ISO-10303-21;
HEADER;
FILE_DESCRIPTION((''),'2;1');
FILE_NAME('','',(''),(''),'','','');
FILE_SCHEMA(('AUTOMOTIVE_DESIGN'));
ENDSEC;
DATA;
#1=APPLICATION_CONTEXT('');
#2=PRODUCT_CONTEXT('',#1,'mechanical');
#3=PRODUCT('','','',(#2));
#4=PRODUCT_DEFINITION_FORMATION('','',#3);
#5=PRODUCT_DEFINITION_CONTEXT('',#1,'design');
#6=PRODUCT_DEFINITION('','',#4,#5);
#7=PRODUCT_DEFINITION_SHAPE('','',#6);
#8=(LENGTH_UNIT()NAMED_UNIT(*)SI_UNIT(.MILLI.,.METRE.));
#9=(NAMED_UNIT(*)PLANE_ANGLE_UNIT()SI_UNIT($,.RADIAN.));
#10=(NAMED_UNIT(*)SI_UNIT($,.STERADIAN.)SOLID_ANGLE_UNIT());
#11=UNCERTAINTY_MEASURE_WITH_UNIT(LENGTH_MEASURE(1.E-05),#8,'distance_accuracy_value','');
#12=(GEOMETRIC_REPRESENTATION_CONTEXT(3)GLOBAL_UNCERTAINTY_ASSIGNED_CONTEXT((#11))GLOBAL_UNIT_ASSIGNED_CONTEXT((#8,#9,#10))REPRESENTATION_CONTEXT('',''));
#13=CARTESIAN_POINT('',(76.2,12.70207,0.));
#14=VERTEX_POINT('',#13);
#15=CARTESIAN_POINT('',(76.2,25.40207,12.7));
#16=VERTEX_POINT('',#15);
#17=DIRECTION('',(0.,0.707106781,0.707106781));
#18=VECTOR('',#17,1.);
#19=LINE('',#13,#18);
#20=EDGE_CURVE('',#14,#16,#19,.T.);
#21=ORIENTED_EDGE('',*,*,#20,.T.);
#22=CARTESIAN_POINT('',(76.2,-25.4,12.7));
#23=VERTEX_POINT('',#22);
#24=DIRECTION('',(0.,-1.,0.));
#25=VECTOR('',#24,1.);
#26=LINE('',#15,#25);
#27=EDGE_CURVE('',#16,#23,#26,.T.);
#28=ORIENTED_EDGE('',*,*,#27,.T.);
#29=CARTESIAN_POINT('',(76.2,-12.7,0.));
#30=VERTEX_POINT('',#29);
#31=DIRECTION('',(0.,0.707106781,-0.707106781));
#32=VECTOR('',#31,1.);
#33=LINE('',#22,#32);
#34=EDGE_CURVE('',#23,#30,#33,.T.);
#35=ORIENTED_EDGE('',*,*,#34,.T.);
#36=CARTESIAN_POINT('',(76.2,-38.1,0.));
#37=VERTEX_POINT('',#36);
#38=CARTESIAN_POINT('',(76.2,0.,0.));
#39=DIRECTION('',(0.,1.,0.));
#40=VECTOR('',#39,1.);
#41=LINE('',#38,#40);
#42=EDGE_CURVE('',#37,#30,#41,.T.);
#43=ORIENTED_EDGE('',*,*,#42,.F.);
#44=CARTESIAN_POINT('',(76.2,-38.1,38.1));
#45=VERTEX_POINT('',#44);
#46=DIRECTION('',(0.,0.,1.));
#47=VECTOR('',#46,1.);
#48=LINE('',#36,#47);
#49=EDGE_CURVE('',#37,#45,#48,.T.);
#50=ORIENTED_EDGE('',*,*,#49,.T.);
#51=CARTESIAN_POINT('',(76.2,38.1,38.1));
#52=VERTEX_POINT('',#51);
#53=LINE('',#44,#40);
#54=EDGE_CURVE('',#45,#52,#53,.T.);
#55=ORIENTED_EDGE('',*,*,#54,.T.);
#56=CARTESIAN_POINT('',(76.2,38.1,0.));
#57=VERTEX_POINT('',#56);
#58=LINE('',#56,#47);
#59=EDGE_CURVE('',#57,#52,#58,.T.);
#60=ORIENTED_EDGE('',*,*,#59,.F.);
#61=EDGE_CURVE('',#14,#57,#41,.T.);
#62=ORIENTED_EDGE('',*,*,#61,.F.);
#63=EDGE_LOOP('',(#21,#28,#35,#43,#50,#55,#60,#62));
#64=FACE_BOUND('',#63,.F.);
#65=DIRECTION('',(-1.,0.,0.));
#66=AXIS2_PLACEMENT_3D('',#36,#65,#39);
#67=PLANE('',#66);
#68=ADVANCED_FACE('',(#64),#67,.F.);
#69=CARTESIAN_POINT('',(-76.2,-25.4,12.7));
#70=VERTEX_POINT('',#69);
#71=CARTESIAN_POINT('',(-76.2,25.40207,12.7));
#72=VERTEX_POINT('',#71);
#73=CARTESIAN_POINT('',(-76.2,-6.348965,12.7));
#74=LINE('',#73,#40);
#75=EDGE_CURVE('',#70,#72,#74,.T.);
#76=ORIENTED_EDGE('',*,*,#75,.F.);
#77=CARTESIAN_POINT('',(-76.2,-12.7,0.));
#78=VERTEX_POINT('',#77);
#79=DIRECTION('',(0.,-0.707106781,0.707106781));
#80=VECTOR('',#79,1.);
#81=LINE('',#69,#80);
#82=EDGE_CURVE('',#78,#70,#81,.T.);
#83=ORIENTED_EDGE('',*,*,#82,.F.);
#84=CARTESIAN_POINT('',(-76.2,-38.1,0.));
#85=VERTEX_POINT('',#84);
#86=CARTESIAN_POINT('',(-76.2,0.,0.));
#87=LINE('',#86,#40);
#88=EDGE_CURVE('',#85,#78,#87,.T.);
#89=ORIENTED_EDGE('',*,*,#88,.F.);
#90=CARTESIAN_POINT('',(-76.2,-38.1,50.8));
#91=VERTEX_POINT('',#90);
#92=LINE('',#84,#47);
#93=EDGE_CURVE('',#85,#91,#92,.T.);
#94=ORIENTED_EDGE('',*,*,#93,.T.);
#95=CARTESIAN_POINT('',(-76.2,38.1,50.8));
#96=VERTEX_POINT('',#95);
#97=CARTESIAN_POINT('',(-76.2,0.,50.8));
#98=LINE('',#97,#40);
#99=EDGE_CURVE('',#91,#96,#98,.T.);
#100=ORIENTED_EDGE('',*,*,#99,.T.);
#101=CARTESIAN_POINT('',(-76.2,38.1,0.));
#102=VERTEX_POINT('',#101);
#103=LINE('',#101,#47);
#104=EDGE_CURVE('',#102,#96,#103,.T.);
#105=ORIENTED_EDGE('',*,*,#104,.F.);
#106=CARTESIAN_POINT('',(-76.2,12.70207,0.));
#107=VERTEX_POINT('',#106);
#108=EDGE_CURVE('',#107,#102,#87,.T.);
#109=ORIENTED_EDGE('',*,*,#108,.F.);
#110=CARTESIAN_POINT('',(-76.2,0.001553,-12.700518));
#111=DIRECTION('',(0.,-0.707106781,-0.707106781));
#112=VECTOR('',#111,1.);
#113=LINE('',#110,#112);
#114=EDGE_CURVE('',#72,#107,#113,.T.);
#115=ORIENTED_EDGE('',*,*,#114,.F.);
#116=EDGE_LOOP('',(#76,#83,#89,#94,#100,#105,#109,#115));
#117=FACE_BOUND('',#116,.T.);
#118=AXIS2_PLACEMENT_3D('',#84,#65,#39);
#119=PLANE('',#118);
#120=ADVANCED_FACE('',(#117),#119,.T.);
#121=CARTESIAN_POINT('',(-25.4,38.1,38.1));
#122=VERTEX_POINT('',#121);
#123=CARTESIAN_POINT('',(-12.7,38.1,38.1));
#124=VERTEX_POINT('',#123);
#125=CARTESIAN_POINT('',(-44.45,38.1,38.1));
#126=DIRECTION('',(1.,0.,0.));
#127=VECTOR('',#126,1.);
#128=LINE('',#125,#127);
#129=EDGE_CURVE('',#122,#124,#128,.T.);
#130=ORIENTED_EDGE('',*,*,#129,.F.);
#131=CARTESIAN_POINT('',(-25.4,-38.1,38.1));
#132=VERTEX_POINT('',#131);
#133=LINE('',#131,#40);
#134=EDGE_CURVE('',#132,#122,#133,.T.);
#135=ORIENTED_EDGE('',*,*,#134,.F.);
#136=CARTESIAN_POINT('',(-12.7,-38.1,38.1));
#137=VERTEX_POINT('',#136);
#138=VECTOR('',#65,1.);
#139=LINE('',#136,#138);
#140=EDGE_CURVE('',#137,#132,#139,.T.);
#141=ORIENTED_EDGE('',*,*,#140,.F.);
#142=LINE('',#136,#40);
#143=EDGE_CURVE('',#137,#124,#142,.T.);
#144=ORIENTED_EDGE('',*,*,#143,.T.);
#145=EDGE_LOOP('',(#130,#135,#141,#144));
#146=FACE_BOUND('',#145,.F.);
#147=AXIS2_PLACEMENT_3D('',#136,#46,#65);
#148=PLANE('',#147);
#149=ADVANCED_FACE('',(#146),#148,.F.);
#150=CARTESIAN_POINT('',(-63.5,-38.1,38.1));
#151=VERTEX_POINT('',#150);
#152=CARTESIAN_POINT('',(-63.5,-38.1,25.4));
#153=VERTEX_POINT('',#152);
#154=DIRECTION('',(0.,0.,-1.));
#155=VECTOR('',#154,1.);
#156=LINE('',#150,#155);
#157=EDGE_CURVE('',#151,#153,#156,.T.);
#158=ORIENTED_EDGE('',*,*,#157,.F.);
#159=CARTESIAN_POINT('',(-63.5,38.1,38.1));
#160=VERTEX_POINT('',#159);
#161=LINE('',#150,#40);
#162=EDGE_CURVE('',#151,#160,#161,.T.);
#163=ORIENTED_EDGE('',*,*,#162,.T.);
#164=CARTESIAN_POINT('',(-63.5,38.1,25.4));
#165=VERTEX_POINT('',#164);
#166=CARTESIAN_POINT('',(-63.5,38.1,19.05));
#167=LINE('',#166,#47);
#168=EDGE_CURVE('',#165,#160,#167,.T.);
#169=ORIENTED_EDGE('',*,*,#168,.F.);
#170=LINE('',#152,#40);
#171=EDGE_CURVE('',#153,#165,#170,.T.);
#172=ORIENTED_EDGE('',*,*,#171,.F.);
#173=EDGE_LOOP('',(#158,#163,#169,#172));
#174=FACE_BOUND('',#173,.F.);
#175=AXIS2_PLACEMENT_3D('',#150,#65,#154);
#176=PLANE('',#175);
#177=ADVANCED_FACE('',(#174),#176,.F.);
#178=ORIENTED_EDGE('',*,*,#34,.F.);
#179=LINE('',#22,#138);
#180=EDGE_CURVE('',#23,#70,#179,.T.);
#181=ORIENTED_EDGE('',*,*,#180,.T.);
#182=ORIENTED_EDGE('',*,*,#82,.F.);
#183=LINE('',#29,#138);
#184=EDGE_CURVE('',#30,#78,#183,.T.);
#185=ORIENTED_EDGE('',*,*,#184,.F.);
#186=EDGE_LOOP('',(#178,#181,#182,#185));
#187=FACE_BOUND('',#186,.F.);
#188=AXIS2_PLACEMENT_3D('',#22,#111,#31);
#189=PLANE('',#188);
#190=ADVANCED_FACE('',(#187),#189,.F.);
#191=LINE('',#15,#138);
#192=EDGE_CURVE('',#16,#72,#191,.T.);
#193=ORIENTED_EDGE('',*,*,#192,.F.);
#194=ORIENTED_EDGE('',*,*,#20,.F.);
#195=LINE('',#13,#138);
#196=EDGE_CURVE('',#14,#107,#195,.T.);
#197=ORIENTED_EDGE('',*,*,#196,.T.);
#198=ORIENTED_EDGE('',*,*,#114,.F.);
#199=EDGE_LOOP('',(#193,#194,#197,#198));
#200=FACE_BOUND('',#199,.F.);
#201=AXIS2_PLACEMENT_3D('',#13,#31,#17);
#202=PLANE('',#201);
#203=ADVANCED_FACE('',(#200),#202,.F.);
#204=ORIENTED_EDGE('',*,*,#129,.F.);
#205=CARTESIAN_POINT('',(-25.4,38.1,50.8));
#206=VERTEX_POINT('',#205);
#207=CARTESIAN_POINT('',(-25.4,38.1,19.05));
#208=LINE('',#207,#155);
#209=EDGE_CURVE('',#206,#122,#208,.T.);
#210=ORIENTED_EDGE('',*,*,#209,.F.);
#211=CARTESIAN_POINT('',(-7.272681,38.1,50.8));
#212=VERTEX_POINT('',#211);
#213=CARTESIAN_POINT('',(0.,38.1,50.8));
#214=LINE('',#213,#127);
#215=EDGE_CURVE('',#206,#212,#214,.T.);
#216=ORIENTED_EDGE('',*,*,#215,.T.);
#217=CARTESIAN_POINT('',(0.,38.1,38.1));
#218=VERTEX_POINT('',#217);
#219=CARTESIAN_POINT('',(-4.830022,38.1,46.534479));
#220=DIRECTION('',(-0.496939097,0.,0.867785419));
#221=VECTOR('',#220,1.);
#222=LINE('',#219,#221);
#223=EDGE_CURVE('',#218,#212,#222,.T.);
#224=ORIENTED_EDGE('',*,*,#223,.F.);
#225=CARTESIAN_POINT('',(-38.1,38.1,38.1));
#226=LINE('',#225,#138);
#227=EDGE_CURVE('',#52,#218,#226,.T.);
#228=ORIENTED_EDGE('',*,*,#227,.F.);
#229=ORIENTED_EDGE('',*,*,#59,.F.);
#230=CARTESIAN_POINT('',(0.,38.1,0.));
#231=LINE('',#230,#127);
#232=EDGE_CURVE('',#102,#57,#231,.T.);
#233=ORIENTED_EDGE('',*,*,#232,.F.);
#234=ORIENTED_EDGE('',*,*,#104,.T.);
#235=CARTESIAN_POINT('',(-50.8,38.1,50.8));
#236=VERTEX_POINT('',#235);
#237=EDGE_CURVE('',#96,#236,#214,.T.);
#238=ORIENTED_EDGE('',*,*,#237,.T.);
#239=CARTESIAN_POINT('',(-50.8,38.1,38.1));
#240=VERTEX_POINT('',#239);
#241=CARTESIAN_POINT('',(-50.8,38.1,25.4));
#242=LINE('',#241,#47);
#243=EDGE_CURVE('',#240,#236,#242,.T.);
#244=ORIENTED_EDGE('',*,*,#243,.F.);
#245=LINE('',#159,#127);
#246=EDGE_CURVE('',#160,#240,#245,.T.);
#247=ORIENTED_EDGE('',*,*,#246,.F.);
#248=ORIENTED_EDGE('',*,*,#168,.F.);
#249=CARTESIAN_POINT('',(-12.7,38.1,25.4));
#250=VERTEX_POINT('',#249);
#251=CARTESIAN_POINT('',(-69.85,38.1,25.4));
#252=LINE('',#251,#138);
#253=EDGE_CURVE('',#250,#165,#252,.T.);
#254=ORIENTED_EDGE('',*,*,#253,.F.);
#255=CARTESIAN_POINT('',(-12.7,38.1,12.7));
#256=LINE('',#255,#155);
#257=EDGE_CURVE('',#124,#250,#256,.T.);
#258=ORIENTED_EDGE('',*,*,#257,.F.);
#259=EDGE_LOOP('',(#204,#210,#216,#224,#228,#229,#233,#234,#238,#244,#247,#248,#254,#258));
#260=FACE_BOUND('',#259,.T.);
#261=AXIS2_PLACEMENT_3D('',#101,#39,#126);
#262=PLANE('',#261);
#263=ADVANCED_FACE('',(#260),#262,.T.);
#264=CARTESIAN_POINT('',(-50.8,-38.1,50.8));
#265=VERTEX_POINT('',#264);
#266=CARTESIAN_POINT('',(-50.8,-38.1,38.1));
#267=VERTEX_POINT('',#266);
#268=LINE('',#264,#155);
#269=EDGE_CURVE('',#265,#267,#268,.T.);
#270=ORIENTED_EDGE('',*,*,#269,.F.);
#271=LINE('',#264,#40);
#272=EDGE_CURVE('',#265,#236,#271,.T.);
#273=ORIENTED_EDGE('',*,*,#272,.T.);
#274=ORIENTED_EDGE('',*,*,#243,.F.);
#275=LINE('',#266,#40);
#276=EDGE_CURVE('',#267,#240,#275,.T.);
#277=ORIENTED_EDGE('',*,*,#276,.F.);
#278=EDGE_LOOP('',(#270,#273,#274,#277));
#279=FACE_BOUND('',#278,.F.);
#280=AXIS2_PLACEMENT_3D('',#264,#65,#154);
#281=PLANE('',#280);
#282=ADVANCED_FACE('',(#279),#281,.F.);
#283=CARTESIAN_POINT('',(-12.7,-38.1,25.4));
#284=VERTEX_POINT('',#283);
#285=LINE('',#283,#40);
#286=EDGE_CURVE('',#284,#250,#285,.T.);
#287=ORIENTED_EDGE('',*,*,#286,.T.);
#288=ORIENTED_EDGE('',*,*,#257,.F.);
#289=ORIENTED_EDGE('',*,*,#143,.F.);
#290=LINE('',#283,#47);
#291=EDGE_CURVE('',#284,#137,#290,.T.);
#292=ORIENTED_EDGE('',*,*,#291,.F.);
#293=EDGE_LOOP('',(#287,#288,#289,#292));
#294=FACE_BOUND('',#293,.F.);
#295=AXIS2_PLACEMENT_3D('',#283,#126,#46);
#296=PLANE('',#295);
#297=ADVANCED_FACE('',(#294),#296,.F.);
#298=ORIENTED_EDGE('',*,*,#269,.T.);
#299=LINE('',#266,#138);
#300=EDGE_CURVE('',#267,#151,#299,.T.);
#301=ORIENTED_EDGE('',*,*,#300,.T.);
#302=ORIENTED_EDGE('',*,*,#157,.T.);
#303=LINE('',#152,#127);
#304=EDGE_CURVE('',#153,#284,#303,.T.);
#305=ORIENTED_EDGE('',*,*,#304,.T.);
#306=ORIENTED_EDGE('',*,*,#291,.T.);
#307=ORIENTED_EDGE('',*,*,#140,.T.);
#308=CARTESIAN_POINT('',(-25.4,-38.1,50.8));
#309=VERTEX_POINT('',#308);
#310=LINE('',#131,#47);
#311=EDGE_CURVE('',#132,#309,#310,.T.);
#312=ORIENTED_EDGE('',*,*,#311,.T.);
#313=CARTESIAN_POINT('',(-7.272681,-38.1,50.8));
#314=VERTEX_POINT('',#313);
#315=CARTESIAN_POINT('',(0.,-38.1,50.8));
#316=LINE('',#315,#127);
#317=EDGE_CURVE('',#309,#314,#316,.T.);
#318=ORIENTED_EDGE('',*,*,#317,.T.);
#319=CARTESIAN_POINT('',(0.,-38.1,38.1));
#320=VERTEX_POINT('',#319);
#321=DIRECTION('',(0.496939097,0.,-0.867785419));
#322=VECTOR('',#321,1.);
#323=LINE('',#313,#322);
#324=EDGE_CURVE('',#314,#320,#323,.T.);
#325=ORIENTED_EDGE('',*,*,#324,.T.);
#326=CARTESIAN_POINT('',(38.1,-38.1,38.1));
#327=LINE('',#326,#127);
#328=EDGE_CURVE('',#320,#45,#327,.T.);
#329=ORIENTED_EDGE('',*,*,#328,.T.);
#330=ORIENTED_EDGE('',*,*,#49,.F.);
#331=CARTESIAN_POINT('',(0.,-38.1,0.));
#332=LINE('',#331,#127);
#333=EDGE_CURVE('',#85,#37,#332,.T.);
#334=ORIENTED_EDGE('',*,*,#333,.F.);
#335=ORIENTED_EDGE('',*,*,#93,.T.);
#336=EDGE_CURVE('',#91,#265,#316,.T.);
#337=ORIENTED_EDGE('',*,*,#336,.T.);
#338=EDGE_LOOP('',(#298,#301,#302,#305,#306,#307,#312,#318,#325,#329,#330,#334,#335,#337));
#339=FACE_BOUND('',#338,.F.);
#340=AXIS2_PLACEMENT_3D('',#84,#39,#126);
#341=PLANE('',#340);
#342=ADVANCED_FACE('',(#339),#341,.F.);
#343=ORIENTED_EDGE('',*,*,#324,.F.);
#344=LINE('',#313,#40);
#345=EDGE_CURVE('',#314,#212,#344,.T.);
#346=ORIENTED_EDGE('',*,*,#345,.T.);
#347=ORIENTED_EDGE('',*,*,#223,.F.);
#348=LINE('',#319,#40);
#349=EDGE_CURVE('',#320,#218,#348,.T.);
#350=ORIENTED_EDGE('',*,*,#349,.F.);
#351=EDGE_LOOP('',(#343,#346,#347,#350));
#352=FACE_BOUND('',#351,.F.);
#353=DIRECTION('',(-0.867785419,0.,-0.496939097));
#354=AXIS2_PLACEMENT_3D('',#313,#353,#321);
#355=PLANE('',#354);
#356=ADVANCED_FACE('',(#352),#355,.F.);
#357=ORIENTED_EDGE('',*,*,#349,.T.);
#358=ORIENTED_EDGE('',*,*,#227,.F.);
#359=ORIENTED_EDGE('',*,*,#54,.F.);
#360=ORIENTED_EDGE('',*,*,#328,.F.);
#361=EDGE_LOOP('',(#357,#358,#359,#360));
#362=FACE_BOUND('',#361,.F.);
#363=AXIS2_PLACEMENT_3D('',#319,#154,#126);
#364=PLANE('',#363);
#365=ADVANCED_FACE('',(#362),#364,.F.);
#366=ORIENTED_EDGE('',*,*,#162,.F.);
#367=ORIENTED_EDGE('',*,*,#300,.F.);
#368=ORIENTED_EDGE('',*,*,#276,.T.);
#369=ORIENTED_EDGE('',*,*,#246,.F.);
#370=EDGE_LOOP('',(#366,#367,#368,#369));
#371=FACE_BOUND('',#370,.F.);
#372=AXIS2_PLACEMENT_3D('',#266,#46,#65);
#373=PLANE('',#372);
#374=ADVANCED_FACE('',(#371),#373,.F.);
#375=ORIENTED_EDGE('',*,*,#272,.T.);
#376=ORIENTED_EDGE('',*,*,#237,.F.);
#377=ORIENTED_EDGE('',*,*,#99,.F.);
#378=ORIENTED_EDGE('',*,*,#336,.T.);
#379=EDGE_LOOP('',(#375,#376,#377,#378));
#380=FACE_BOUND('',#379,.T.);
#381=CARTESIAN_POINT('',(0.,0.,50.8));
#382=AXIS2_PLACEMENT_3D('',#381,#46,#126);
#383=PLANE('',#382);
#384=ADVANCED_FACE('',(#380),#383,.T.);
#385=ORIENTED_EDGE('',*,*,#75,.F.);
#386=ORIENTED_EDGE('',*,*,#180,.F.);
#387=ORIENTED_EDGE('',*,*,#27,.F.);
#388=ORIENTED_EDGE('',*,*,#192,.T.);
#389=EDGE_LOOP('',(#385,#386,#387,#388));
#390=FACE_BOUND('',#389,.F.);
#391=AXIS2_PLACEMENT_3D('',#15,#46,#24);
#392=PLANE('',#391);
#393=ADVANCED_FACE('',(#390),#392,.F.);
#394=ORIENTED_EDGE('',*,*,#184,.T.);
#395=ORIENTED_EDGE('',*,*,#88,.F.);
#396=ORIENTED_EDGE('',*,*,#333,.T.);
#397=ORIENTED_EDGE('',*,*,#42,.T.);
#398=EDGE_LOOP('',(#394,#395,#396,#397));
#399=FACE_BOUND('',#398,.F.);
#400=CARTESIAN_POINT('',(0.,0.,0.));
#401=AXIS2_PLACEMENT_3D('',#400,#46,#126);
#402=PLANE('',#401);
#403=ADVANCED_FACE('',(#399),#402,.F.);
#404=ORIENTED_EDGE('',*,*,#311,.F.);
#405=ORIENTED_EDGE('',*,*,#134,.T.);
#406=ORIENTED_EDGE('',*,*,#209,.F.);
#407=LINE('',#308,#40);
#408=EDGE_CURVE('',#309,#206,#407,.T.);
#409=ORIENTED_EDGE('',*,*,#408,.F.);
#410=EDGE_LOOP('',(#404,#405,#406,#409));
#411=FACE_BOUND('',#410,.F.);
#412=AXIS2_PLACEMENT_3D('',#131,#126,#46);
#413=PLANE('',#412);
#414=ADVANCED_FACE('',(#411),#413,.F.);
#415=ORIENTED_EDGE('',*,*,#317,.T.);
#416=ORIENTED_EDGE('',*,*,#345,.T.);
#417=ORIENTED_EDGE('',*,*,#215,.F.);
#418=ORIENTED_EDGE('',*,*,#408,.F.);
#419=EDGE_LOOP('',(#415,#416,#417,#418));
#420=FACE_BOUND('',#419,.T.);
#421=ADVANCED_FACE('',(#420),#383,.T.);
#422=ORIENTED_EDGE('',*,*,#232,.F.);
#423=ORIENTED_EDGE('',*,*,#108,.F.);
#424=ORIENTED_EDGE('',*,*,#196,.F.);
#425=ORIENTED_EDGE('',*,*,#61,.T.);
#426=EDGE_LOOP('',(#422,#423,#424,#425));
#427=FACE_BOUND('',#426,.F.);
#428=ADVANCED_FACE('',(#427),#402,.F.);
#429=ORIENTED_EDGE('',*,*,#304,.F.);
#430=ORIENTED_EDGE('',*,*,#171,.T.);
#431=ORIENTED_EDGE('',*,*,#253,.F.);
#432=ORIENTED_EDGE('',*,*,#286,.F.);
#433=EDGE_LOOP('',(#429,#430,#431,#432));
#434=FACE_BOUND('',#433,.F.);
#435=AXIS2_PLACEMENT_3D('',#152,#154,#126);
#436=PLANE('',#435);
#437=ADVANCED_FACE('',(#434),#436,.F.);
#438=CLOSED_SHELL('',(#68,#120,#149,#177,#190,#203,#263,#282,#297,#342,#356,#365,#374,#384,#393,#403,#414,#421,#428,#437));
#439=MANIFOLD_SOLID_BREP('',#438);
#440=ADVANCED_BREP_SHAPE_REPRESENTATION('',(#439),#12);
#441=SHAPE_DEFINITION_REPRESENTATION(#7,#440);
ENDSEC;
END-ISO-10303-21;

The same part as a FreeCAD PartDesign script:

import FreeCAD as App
import Part
import Sketcher
Q = App.Units.Quantity

doc = App.newDocument("Part")
body = doc.addObject("PartDesign::Body", "Body")

# Sketch on XY plane
sketch1 = body.newObject("Sketcher::SketchObject", "Sketch")
sketch1.AttachmentSupport = (doc.getObject("XY_Plane"), [""])
sketch1.MapMode = "FlatFace"
sketch1.addGeometry([
    Part.LineSegment(App.Vector(-76, 38, 0), App.Vector(-76, -38, 0)),
    Part.LineSegment(App.Vector(-76, -38, 0), App.Vector(76, -38, 0)),
    Part.LineSegment(App.Vector(76, -38, 0), App.Vector(76, 38, 0)),
    Part.LineSegment(App.Vector(76, 38, 0), App.Vector(-76, 38, 0)),
], False)
sketch1.addConstraint([
    Sketcher.Constraint("Coincident", 0, 2, 1, 1),
    Sketcher.Constraint("Coincident", 1, 2, 2, 1),
    Sketcher.Constraint("Coincident", 2, 2, 3, 1),
    Sketcher.Constraint("Coincident", 3, 2, 0, 1),
    Sketcher.Constraint("Vertical", 0),
    Sketcher.Constraint("Horizontal", 1),
    Sketcher.Constraint("Vertical", 2),
    Sketcher.Constraint("Horizontal", 3),
    Sketcher.Constraint("Symmetric", 0, 2, 2, 2, -1, 1),
    Sketcher.Constraint("DistanceX", 1, 1, 1, 2, Q("6 in")),
    Sketcher.Constraint("DistanceY", 0, 2, 0, 1, Q("3 in")),
])
pad1 = body.newObject("PartDesign::Pad", "Pad")
pad1.Profile = sketch1
pad1.Length = Q("2 in")

# Sketch on YZ plane
sketch2 = body.newObject("Sketcher::SketchObject", "Sketch001")
sketch2.AttachmentSupport = (doc.getObject("YZ_Plane"), [""])
sketch2.MapMode = "FlatFace"
sketch2.AttachmentOffset = App.Placement(App.Vector(0, 0, 3 * 25.4), App.Rotation())
sketch2.addGeometry([
    Part.LineSegment(App.Vector(25, 13, 0), App.Vector(-25, 13, 0)),
    Part.LineSegment(App.Vector(-25, 13, 0), App.Vector(-13, 0, 0)),
    Part.LineSegment(App.Vector(-13, 0, 0), App.Vector(13, 0, 0)),
    Part.LineSegment(App.Vector(13, 0, 0), App.Vector(25, 13, 0)),
], False)
sketch2.addConstraint([
    Sketcher.Constraint("Coincident", 0, 2, 1, 1),
    Sketcher.Constraint("Coincident", 1, 2, 2, 1),
    Sketcher.Constraint("Coincident", 2, 2, 3, 1),
    Sketcher.Constraint("Coincident", 3, 2, 0, 1),
    Sketcher.Constraint("Horizontal", 0),
    Sketcher.Constraint("Horizontal", 2),
    Sketcher.Constraint("PointOnObject", 1, 2, -1),
    Sketcher.Constraint("Perpendicular", 1, 3),
    Sketcher.Constraint("Equal", 1, 3),
    Sketcher.Constraint("DistanceX", 0, 2, -1, 1, Q("1 in")),
    Sketcher.Constraint("DistanceY", -1, 1, 0, 2, Q("0.5 in")),
    Sketcher.Constraint("DistanceX", 0, 2, 0, 1, 50.80207),
])
pocket1 = body.newObject("PartDesign::Pocket", "Pocket")
pocket1.Profile = sketch2
pocket1.Type = "ThroughAll"

# Sketch on XZ plane
sketch3 = body.newObject("Sketcher::SketchObject", "Sketch002")
sketch3.AttachmentSupport = (doc.getObject("XZ_Plane"), [""])
sketch3.MapMode = "FlatFace"
sketch3.AttachmentOffset = App.Placement(App.Vector(0, 0, 1.5 * 25.4), App.Rotation())
sketch3.addGeometry([
    Part.LineSegment(App.Vector(-25, 51, 0), App.Vector(-51, 51, 0)),  # 0
    Part.LineSegment(App.Vector(-51, 51, 0), App.Vector(-51, 38, 0)),  # 1
    Part.LineSegment(App.Vector(-51, 38, 0), App.Vector(-64, 38, 0)),  # 2
    Part.LineSegment(App.Vector(-64, 38, 0), App.Vector(-64, 25, 0)),  # 3
    Part.LineSegment(App.Vector(-64, 25, 0), App.Vector(-13, 25, 0)),  # 4
    Part.LineSegment(App.Vector(-13, 25, 0), App.Vector(-13, 38, 0)),  # 5
    Part.LineSegment(App.Vector(-13, 38, 0), App.Vector(-25, 38, 0)),  # 6
    Part.LineSegment(App.Vector(-25, 38, 0), App.Vector(-25, 51, 0)),  # 7
], False)
sketch3.addConstraint([
    Sketcher.Constraint("Coincident", 0, 2, 1, 1),
    Sketcher.Constraint("Coincident", 1, 2, 2, 1),
    Sketcher.Constraint("Coincident", 2, 2, 3, 1),
    Sketcher.Constraint("Coincident", 3, 2, 4, 1),
    Sketcher.Constraint("Coincident", 4, 2, 5, 1),
    Sketcher.Constraint("Coincident", 5, 2, 6, 1),
    Sketcher.Constraint("Coincident", 6, 2, 7, 1),
    Sketcher.Constraint("Coincident", 7, 2, 0, 1),
    Sketcher.Constraint("Horizontal", 0),
    Sketcher.Constraint("Vertical", 1),
    Sketcher.Constraint("Horizontal", 2),
    Sketcher.Constraint("Vertical", 3),
    Sketcher.Constraint("Horizontal", 4),
    Sketcher.Constraint("Vertical", 5),
    Sketcher.Constraint("Horizontal", 6),
    Sketcher.Constraint("Vertical", 7),
    Sketcher.Constraint("Horizontal", 2, 2, 5, 2),
    Sketcher.Constraint("Equal", 2, 6),
    Sketcher.Constraint("Equal", 6, 1),
    Sketcher.Constraint("Equal", 1, 3),
    Sketcher.Constraint("DistanceX", 0, 2, 0, 1, Q("1 in")),
    Sketcher.Constraint("DistanceX", 4, 1, 4, 2, Q("2 in")),
    Sketcher.Constraint("DistanceX", 0, 2, -1, 1, Q("2 in")),
    Sketcher.Constraint("DistanceY", -1, 1, 0, 2, Q("2 in")),
])
pocket2 = body.newObject("PartDesign::Pocket", "Pocket001")
pocket2.Profile = sketch3
pocket2.Type = "ThroughAll"

# Sketch on XZ plane
sketch4 = body.newObject("Sketcher::SketchObject", "Sketch003")
sketch4.AttachmentSupport = (doc.getObject("XZ_Plane"), [""])
sketch4.MapMode = "FlatFace"
sketch4.AttachmentOffset = App.Placement(App.Vector(0, 0, 1.5 * 25.4), App.Rotation())
sketch4.addGeometry([
    Part.LineSegment(App.Vector(0, 38, 0), App.Vector(76, 38, 0)),
    Part.LineSegment(App.Vector(76, 38, 0), App.Vector(76, 51, 0)),
    Part.LineSegment(App.Vector(76, 51, 0), App.Vector(-7, 51, 0)),
    Part.LineSegment(App.Vector(-7, 51, 0), App.Vector(0, 38, 0)),
], False)
sketch4.addConstraint([
    Sketcher.Constraint("Coincident", 0, 2, 1, 1),
    Sketcher.Constraint("Coincident", 1, 2, 2, 1),
    Sketcher.Constraint("Coincident", 2, 2, 3, 1),
    Sketcher.Constraint("Coincident", 3, 2, 0, 1),
    Sketcher.Constraint("Horizontal", 0),
    Sketcher.Constraint("Vertical", 1),
    Sketcher.Constraint("Horizontal", 2),
    Sketcher.Constraint("PointOnObject", 3, 2, -2),
    Sketcher.Constraint("DistanceX", 0, 1, 0, 2, Q("3 in")),
    Sketcher.Constraint("DistanceY", 1, 1, 1, 2, Q("0.5 in")),
    Sketcher.Constraint("DistanceY", -1, 1, 1, 2, Q("2 in")),
    Sketcher.Constraint("DistanceX", 2, 2, 2, 1, 83.472681),
])
pocket3 = body.newObject("PartDesign::Pocket", "Pocket002")
pocket3.Profile = sketch4
pocket3.Type = "ThroughAll"

doc.recompute()
